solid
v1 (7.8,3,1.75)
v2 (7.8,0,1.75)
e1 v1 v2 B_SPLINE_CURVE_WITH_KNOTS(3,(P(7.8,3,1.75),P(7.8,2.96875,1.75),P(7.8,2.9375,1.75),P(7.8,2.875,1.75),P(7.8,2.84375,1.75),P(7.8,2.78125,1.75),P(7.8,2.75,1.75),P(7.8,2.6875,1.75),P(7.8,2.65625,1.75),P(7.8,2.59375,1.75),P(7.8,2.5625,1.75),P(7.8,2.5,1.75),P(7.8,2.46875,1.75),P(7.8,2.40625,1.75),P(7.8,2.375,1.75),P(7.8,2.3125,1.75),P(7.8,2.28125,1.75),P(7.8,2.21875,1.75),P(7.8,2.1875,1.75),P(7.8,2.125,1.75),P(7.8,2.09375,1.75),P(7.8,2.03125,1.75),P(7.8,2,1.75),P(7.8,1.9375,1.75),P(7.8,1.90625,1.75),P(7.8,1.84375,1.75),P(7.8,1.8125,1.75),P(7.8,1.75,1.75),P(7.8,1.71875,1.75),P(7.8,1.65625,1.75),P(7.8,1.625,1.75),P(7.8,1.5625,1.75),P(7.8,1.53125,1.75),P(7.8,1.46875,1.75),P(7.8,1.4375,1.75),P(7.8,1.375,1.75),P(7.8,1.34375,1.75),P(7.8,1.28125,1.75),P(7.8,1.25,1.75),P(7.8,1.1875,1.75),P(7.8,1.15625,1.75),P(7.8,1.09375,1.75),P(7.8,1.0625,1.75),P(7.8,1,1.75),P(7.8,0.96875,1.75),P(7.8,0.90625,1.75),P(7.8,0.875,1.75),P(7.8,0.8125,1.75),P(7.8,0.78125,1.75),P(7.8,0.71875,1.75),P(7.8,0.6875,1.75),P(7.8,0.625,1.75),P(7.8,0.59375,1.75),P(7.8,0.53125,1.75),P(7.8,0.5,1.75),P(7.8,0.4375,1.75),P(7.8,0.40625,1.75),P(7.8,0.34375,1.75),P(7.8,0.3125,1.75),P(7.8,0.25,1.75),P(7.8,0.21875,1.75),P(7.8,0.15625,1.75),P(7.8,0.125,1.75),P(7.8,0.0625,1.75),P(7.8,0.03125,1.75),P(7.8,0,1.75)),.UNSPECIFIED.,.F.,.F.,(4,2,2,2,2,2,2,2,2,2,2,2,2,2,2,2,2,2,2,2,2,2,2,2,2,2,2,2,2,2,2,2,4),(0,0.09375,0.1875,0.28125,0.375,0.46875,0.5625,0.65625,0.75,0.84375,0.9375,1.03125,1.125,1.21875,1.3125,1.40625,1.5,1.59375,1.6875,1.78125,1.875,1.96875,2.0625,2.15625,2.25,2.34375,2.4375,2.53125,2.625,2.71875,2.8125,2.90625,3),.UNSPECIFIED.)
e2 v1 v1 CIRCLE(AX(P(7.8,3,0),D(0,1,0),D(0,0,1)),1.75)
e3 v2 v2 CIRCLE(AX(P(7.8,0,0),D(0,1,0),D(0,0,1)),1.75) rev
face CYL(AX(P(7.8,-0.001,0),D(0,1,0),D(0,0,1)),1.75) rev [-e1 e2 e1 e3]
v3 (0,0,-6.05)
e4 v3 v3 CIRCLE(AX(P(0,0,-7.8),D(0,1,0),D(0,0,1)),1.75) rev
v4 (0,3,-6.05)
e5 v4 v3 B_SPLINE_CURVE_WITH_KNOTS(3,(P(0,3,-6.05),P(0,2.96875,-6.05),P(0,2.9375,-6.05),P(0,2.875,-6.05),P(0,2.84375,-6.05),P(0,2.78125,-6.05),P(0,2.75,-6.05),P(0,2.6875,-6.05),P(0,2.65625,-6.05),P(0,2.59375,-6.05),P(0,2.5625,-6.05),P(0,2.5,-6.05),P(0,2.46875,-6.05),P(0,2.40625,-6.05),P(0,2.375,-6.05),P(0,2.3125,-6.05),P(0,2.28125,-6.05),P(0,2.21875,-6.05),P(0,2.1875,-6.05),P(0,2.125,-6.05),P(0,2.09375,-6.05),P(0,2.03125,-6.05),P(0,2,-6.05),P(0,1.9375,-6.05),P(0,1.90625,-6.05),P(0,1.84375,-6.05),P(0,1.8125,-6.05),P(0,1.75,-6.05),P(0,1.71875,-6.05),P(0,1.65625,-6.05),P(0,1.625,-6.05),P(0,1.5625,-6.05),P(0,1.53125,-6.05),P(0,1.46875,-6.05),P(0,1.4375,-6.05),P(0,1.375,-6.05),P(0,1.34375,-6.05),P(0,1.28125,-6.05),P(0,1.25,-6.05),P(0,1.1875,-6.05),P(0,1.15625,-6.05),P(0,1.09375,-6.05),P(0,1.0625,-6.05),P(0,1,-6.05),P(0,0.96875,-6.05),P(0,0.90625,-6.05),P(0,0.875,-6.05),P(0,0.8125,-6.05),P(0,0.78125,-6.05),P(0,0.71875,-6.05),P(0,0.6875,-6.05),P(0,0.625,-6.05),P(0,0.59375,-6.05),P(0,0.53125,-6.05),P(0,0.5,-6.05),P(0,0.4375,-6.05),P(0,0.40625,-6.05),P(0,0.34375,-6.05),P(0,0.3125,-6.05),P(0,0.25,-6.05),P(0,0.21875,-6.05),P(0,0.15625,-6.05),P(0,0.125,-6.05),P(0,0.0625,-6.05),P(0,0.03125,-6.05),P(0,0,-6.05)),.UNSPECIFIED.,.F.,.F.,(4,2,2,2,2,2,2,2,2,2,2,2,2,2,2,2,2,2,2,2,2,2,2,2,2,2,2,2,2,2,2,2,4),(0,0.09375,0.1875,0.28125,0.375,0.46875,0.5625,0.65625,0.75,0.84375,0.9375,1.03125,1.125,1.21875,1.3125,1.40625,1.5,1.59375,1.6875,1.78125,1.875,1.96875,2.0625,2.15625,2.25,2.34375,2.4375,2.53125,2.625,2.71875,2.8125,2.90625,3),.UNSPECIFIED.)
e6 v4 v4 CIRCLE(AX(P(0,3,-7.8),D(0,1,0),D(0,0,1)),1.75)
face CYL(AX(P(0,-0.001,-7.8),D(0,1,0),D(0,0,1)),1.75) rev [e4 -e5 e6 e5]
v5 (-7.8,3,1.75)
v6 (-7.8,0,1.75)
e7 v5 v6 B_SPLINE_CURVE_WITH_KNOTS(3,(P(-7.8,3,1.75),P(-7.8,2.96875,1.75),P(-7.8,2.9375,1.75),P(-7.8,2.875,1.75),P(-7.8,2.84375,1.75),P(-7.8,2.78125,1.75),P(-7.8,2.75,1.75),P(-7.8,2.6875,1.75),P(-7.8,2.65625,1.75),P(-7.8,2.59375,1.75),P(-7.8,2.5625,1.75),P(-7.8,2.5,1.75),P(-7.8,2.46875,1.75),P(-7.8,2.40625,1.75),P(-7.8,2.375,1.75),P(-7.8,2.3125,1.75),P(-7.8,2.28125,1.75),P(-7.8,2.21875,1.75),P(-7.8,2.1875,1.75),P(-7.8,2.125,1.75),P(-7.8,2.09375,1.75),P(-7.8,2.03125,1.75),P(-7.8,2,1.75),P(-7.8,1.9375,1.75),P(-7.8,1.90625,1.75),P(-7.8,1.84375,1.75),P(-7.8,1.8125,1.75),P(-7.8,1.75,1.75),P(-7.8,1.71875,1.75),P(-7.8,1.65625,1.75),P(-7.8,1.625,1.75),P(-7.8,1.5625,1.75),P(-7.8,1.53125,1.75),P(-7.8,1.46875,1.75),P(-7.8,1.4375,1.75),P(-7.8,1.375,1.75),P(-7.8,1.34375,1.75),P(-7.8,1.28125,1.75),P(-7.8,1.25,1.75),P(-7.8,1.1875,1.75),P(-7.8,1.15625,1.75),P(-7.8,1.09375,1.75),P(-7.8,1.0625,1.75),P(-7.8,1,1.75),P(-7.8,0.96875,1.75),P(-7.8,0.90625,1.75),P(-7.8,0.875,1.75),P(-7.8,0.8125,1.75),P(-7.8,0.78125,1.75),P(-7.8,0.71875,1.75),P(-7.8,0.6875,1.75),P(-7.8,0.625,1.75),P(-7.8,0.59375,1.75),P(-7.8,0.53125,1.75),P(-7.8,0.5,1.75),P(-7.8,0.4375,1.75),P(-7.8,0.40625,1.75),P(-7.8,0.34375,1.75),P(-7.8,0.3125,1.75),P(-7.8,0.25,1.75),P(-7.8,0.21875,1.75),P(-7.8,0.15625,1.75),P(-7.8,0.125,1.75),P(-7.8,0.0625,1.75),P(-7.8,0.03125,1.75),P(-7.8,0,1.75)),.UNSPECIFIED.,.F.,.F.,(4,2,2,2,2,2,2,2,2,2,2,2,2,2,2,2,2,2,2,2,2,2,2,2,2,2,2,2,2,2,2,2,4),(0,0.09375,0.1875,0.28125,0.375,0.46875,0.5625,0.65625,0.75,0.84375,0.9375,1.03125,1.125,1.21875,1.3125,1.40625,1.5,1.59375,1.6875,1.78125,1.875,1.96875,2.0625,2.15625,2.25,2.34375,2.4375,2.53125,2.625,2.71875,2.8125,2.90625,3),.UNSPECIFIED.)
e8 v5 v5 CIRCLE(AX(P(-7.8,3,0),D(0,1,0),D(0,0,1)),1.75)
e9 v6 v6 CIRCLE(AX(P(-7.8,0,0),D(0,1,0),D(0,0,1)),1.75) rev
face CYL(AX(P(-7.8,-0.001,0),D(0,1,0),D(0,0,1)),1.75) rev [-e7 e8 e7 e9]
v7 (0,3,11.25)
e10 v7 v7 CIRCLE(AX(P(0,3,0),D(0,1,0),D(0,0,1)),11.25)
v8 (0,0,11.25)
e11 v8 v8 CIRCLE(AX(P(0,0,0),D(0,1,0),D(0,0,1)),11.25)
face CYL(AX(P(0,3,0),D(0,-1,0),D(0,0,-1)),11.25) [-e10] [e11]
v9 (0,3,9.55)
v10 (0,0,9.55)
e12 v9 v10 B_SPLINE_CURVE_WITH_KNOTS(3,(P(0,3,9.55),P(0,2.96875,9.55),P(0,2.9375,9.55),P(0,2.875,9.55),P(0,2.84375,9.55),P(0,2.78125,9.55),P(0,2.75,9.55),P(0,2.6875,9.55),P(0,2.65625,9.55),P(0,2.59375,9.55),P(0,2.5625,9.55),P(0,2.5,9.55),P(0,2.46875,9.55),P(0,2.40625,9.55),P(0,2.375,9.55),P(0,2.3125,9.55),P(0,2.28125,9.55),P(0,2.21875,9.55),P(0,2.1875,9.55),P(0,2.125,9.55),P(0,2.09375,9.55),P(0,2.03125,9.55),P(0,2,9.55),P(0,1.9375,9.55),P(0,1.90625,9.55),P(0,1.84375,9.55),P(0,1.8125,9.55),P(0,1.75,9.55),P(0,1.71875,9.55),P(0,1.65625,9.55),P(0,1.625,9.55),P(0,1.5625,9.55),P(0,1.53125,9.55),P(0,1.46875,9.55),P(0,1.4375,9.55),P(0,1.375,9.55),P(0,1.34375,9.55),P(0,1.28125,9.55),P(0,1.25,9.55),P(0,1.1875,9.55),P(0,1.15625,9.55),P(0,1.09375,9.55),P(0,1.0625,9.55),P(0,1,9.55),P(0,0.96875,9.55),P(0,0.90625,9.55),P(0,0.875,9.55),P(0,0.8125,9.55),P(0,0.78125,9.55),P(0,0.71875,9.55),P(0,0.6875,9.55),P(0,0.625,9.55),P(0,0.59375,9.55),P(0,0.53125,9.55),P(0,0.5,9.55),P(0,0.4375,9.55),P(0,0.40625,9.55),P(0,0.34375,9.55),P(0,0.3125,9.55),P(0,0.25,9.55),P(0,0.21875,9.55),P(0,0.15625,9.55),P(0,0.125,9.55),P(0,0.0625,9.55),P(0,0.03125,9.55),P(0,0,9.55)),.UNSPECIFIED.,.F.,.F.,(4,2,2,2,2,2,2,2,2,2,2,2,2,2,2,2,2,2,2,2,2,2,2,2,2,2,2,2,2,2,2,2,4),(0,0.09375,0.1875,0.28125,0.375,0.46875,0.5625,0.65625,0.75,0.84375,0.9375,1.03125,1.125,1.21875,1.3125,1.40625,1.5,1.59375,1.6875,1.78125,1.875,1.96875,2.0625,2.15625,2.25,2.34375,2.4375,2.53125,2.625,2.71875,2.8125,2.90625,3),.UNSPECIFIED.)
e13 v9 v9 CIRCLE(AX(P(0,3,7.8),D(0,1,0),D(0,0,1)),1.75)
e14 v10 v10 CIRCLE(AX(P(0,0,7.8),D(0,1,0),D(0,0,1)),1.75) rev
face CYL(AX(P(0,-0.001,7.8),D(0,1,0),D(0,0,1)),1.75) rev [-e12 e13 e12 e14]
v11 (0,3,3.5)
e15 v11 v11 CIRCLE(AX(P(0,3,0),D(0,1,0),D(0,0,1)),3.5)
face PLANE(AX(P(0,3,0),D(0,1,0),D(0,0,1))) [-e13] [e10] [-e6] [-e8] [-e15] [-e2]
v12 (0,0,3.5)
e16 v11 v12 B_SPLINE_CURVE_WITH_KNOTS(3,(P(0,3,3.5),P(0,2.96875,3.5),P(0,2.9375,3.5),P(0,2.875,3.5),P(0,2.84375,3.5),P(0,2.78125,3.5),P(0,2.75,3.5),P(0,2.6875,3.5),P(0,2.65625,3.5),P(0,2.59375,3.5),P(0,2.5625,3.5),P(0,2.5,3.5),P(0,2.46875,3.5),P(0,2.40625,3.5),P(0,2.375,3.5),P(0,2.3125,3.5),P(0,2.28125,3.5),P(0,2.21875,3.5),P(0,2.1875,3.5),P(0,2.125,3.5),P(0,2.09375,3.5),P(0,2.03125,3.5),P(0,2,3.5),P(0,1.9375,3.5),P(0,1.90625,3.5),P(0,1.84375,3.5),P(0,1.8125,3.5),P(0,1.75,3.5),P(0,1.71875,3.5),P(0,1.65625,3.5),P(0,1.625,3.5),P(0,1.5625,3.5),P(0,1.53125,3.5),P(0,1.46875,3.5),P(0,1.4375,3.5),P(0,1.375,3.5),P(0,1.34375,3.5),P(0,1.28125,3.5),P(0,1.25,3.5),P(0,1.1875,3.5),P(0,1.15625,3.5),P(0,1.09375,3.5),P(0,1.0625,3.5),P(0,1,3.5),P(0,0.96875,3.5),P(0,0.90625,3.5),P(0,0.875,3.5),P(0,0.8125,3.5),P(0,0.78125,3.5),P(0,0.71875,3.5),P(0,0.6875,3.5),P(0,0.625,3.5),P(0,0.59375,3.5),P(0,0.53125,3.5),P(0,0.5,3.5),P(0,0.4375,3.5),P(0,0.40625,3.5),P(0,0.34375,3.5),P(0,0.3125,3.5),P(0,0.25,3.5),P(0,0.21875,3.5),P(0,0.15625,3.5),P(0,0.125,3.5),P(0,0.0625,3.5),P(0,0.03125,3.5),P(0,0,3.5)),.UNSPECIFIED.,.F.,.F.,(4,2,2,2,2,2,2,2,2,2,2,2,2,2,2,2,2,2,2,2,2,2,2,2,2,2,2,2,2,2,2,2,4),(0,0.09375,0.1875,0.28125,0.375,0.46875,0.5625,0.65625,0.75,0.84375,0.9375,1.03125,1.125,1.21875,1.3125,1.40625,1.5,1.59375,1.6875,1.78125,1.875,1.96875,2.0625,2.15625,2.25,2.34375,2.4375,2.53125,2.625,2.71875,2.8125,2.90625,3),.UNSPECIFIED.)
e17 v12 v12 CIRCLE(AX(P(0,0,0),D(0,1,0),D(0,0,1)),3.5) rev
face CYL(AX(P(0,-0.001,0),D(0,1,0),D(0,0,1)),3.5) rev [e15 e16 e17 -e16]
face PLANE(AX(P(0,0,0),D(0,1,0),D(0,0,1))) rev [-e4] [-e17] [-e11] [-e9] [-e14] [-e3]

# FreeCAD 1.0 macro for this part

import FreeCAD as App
import Part
import Sketcher

V = App.Vector
Q = App.Units.Quantity

doc = App.newDocument("Part")
body = doc.addObject("PartDesign::Body", "Body")

sketch1 = doc.addObject("Sketcher::SketchObject", "Sketch")
body.addObject(sketch1)
sketch1.AttachmentSupport = (doc.XZ_Plane, [""])
sketch1.MapMode = "FlatFace"
sketch1.addGeometry(Part.Circle(V(0, 0, 0), V(0, 0, 1), 11), False)
sketch1.addConstraint([
    Sketcher.Constraint("Coincident", 0, 3, -1, 1),
    Sketcher.Constraint("Diameter", 0, Q("22.5 mm")),
])
pad1 = doc.addObject("PartDesign::Pad", "Pad")
body.addObject(pad1)
pad1.Profile = sketch1
pad1.Length = 3
pad1.Reversed = True

sketch2 = doc.addObject("Sketcher::SketchObject", "Sketch001")
body.addObject(sketch2)
sketch2.AttachmentSupport = (doc.XZ_Plane, [""])
sketch2.MapMode = "FlatFace"
sketch2.AttachmentOffset = App.Placement(V(0, 0, -3), App.Rotation())
sketch2.addGeometry(Part.Circle(V(0, -7.8, 0), V(0, 0, 1), 1.8), False)
sketch2.addConstraint([
    Sketcher.Constraint("PointOnObject", 0, 3, -2),
    Sketcher.Constraint("Diameter", 0, Q("3.5 mm")),
    Sketcher.Constraint("DistanceY", 0, 3, -1, 1, Q("7.8 mm")),
])
pocket1 = doc.addObject("PartDesign::Pocket", "Pocket")
body.addObject(pocket1)
pocket1.Profile = sketch2
pocket1.Type = "UpToFirst"
pocket1.Reversed = True

sketch3 = doc.addObject("Sketcher::SketchObject", "Sketch002")
body.addObject(sketch3)
sketch3.AttachmentSupport = (doc.XZ_Plane, [""])
sketch3.MapMode = "FlatFace"
sketch3.AttachmentOffset = App.Placement(V(0, 0, -3), App.Rotation())
sketch3.addGeometry(Part.Circle(V(7.8, 0, 0), V(0, 0, 1), 1.8), False)
sketch3.addConstraint([
    Sketcher.Constraint("PointOnObject", 0, 3, -1),
    Sketcher.Constraint("Diameter", 0, Q("3.5 mm")),
    Sketcher.Constraint("DistanceX", -1, 1, 0, 3, Q("7.8 mm")),
])
pocket2 = doc.addObject("PartDesign::Pocket", "Pocket001")
body.addObject(pocket2)
pocket2.Profile = sketch3
pocket2.Type = "UpToFirst"
pocket2.Reversed = True

sketch4 = doc.addObject("Sketcher::SketchObject", "Sketch003")
body.addObject(sketch4)
sketch4.AttachmentSupport = (doc.XZ_Plane, [""])
sketch4.MapMode = "FlatFace"
sketch4.AttachmentOffset = App.Placement(V(0, 0, -3), App.Rotation())
sketch4.addGeometry(Part.Circle(V(0, 7.8, 0), V(0, 0, 1), 1.8), False)
sketch4.addConstraint([
    Sketcher.Constraint("PointOnObject", 0, 3, -2),
    Sketcher.Constraint("Diameter", 0, Q("3.5 mm")),
    Sketcher.Constraint("DistanceY", -1, 1, 0, 3, Q("7.8 mm")),
])
pocket3 = doc.addObject("PartDesign::Pocket", "Pocket002")
body.addObject(pocket3)
pocket3.Profile = sketch4
pocket3.Type = "UpToFirst"
pocket3.Reversed = True

sketch5 = doc.addObject("Sketcher::SketchObject", "Sketch004")
body.addObject(sketch5)
sketch5.AttachmentSupport = (doc.XZ_Plane, [""])
sketch5.MapMode = "FlatFace"
sketch5.AttachmentOffset = App.Placement(V(0, 0, -3), App.Rotation())
sketch5.addGeometry(Part.Circle(V(-7.8, 0, 0), V(0, 0, 1), 1.8), False)
sketch5.addConstraint([
    Sketcher.Constraint("PointOnObject", 0, 3, -1),
    Sketcher.Constraint("Diameter", 0, Q("3.5 mm")),
    Sketcher.Constraint("DistanceX", 0, 3, -1, 1, Q("7.8 mm")),
])
pocket4 = doc.addObject("PartDesign::Pocket", "Pocket003")
body.addObject(pocket4)
pocket4.Profile = sketch5
pocket4.Type = "UpToFirst"
pocket4.Reversed = True

sketch6 = doc.addObject("Sketcher::SketchObject", "Sketch005")
body.addObject(sketch6)
sketch6.AttachmentSupport = (doc.XZ_Plane, [""])
sketch6.MapMode = "FlatFace"
sketch6.AttachmentOffset = App.Placement(V(0, 0, -3), App.Rotation())
sketch6.addGeometry(Part.Circle(V(0, 0, 0), V(0, 0, 1), 3.5), False)
sketch6.addConstraint([
    Sketcher.Constraint("Coincident", 0, 3, -1, 1),
    Sketcher.Constraint("Diameter", 0, Q("7 mm")),
])
pocket5 = doc.addObject("PartDesign::Pocket", "Pocket004")
body.addObject(pocket5)
pocket5.Profile = sketch6
pocket5.Type = "UpToFirst"
pocket5.Reversed = True

doc.recompute()
